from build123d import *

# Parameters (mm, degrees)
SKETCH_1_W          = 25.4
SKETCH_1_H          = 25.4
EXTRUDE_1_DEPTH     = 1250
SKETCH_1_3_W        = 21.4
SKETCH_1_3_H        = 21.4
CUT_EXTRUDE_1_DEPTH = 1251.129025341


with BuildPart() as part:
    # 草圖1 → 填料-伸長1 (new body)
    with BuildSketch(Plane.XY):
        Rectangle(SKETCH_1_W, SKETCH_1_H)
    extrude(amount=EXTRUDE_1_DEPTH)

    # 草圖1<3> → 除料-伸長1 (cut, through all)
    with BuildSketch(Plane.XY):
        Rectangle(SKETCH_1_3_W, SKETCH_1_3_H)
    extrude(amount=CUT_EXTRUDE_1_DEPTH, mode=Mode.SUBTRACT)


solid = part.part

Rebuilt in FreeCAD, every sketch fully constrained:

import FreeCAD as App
import Part
import Sketcher
Q = App.Units.Quantity


def add_polygon(sketch, points):
    """Adds a closed chain of lines whose ends are joined by coincident constraints."""
    first, n = sketch.GeometryCount, len(points)
    for a, b in zip(points, points[1:] + points[:1]):
        sketch.addGeometry(Part.LineSegment(App.Vector(*a, 0), App.Vector(*b, 0)), False)
    for i in range(n):
        sketch.addConstraint(Sketcher.Constraint("Coincident", first + i, 2, first + (i + 1) % n, 1))

doc = App.newDocument("Part")
body = doc.addObject("PartDesign::Body", "Body")

# Sketch on XY plane
sketch1 = body.newObject("Sketcher::SketchObject", "Sketch")
sketch1.AttachmentSupport = (doc.getObject("XY_Plane"), [""])
sketch1.MapMode = "FlatFace"
add_polygon(sketch1, [(-13, 13), (-13, -13), (13, -13), (13, 13)])  # lines 0-3
sketch1.addConstraint([
    Sketcher.Constraint("Vertical", 0),
    Sketcher.Constraint("Horizontal", 1),
    Sketcher.Constraint("Vertical", 2),
    Sketcher.Constraint("Horizontal", 3),
    Sketcher.Constraint("Symmetric", 0, 2, 2, 2, -1, 1),
    Sketcher.Constraint("Equal", 3, 0),
    Sketcher.Constraint("DistanceX", 1, 1, 1, 2, Q("25.4 mm")),
])
pad1 = body.newObject("PartDesign::Pad", "Pad")
pad1.Profile = sketch1
pad1.Length = 1250

# Sketch on XY plane
sketch2 = body.newObject("Sketcher::SketchObject", "Sketch001")
sketch2.AttachmentSupport = (doc.getObject("XY_Plane"), [""])
sketch2.MapMode = "FlatFace"
add_polygon(sketch2, [(-11, 11), (-11, -11), (11, -11), (11, 11)])  # lines 0-3
sketch2.addConstraint([
    Sketcher.Constraint("Vertical", 0),
    Sketcher.Constraint("Horizontal", 1),
    Sketcher.Constraint("Vertical", 2),
    Sketcher.Constraint("Horizontal", 3),
    Sketcher.Constraint("Symmetric", 0, 2, 2, 2, -1, 1),
    Sketcher.Constraint("Equal", 3, 0),
    Sketcher.Constraint("DistanceX", 1, 1, 1, 2, Q("21.4 mm")),
])
pocket1 = body.newObject("PartDesign::Pocket", "Pocket")
pocket1.Profile = sketch2
pocket1.Type = "ThroughAll"
pocket1.Reversed = True

doc.recompute()
